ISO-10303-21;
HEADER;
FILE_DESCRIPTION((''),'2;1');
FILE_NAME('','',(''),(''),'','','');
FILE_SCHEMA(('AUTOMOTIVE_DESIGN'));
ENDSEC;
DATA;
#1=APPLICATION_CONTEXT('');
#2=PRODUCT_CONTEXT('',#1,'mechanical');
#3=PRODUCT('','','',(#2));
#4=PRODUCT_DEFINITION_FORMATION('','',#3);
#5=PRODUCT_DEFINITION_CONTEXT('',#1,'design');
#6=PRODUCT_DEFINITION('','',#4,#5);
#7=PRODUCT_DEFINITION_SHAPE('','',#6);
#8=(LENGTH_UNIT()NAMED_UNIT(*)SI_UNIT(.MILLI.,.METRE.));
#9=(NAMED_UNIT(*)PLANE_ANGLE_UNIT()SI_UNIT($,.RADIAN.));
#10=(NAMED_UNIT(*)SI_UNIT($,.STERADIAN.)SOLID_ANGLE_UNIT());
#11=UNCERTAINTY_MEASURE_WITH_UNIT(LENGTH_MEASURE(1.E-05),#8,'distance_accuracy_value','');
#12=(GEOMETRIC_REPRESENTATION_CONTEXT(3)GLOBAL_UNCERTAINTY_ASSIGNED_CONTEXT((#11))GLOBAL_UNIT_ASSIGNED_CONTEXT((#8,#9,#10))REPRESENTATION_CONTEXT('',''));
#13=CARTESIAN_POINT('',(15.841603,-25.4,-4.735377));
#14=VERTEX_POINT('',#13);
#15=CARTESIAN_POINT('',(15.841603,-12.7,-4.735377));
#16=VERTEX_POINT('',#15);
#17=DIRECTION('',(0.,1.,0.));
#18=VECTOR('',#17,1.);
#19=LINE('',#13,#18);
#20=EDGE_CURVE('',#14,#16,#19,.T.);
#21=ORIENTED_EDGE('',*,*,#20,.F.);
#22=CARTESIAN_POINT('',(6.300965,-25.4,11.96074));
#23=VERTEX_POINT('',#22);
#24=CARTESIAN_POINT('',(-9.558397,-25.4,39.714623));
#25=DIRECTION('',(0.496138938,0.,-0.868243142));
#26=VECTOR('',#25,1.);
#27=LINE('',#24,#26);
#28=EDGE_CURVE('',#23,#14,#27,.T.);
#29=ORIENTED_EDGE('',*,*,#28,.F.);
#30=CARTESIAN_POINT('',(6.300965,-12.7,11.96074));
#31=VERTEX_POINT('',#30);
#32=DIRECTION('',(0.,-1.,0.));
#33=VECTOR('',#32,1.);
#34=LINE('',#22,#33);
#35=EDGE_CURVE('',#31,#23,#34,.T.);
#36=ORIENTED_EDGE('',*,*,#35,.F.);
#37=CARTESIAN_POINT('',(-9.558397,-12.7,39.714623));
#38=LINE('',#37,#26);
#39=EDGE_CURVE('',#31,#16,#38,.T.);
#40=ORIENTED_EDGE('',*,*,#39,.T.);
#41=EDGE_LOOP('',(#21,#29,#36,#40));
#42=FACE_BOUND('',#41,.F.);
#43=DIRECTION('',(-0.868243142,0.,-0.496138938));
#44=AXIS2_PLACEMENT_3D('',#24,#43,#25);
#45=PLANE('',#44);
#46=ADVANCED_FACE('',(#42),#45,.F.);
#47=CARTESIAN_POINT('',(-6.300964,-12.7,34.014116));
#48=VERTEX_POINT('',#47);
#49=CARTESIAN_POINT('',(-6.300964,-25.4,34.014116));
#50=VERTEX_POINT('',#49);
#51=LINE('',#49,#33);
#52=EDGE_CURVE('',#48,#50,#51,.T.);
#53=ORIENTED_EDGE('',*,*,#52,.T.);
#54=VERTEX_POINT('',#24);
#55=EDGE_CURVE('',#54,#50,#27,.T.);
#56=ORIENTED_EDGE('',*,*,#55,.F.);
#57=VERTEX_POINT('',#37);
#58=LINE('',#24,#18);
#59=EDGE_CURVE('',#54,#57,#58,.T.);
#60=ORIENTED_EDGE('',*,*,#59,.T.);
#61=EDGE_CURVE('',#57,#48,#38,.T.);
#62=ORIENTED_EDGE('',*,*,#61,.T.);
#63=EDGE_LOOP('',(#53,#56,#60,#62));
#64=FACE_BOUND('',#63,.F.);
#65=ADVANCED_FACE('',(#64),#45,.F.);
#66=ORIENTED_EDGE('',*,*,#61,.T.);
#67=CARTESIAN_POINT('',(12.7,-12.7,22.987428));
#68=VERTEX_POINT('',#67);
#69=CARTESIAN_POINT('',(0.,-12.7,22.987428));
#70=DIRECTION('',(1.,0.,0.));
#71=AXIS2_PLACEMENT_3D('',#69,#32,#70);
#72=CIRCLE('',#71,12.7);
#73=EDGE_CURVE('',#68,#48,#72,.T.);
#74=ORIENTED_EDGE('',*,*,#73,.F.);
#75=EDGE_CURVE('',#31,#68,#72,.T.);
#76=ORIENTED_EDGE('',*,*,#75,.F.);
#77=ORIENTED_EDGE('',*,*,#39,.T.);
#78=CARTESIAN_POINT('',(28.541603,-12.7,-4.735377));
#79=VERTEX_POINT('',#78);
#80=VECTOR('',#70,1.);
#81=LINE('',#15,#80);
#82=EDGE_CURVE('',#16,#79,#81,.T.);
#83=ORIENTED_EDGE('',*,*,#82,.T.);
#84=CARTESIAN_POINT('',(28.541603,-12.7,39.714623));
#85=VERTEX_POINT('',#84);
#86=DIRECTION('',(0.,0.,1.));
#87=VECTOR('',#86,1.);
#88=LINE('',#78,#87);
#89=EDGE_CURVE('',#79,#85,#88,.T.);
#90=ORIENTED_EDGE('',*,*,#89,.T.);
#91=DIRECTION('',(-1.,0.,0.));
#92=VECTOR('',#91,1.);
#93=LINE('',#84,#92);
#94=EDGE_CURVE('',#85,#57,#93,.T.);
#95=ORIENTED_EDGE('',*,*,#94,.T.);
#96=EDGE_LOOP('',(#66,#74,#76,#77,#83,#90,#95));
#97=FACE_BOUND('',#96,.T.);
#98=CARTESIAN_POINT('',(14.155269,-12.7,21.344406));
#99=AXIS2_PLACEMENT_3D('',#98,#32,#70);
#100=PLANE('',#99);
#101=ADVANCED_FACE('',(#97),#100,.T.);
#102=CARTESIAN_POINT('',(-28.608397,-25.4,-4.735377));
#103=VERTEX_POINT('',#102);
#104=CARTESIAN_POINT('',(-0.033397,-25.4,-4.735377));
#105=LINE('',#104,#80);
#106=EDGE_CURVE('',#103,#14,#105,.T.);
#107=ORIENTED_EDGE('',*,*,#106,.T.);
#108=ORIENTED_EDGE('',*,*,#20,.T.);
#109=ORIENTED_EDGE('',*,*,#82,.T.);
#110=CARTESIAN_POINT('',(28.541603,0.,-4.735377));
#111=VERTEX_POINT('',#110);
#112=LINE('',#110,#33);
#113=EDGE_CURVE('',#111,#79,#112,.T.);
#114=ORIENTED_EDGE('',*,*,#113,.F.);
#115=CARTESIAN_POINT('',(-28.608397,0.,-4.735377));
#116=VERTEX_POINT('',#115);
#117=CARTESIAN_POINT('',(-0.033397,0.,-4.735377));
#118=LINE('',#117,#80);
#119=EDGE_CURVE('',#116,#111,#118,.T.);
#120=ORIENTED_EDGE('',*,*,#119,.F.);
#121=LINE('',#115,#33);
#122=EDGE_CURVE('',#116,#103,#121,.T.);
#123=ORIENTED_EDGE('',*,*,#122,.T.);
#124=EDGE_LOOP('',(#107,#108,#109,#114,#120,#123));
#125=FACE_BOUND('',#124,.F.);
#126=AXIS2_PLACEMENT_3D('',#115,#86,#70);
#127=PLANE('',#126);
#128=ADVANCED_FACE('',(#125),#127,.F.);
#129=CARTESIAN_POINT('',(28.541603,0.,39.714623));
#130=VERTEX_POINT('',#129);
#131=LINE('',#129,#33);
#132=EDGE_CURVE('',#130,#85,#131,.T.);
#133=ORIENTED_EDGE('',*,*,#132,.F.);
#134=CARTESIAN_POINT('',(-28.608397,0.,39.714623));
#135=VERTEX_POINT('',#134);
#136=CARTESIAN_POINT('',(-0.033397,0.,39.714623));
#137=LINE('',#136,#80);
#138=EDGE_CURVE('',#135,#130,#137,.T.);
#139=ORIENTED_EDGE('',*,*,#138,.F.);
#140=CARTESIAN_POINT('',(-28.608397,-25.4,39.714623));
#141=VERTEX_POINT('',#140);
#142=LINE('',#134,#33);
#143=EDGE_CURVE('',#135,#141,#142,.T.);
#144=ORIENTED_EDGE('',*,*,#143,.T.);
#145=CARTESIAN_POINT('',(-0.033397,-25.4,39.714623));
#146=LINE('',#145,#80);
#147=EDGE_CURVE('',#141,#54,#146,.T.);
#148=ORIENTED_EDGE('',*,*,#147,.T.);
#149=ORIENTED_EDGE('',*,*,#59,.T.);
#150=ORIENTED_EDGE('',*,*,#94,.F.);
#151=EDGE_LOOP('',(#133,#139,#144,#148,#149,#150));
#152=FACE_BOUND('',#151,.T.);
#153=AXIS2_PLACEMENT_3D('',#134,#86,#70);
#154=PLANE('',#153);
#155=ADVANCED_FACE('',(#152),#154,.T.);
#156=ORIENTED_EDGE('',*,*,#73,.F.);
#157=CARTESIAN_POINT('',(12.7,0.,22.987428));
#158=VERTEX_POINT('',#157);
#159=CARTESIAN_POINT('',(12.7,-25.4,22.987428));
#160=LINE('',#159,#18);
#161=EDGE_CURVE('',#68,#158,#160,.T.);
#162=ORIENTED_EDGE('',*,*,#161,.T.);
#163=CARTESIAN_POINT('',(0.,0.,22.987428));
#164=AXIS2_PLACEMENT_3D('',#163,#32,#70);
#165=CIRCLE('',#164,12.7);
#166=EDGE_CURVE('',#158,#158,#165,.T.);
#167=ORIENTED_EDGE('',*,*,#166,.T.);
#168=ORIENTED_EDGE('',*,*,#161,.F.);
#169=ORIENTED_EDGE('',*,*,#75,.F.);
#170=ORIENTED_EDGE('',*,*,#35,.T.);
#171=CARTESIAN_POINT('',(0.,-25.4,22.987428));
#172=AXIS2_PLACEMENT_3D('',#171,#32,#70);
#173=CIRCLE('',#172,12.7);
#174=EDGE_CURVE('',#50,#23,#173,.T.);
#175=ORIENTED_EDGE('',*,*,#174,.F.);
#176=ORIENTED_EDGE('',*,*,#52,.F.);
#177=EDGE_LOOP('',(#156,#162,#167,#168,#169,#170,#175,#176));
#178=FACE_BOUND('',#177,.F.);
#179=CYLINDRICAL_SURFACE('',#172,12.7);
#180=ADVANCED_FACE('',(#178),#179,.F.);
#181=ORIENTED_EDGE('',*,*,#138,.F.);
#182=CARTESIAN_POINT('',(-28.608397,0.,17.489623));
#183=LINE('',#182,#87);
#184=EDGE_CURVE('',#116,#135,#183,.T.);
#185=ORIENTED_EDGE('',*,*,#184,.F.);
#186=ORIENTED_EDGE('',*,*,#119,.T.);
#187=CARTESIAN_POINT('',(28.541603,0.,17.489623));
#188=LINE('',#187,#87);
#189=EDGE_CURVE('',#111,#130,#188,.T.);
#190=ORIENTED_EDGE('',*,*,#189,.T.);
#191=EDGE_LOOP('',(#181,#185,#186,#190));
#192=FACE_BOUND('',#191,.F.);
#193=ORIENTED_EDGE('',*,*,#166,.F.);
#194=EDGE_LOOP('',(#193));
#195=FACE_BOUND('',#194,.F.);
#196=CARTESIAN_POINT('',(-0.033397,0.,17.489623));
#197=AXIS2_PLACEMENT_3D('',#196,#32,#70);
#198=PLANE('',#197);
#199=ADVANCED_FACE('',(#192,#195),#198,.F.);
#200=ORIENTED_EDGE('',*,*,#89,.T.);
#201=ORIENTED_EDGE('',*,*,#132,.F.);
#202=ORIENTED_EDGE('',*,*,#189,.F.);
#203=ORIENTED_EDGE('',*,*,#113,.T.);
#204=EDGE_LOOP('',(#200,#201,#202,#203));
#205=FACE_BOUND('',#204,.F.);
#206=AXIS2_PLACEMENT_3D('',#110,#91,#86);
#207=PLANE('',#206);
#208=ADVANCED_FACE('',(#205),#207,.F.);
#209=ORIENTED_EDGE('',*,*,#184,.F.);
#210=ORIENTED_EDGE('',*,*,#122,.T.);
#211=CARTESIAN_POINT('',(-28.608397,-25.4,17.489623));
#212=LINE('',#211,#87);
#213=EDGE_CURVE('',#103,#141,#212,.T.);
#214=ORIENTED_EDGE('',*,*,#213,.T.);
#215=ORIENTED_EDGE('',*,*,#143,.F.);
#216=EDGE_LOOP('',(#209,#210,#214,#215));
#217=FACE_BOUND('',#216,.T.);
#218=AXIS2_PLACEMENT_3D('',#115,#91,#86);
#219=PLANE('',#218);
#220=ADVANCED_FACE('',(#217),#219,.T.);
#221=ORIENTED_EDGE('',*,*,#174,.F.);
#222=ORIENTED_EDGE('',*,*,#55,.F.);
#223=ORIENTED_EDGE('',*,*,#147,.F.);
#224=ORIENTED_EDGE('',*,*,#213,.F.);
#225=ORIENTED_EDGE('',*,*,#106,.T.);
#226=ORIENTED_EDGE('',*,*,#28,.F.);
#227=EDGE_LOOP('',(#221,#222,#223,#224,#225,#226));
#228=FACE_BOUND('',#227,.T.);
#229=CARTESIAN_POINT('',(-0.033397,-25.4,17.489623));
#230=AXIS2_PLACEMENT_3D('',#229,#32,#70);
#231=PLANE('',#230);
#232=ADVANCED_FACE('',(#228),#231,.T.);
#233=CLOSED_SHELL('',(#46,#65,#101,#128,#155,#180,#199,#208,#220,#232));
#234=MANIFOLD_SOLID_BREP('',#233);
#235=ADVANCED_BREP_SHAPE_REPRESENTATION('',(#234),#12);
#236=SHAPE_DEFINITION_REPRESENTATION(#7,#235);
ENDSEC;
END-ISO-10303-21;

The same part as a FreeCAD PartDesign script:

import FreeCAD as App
import Part
import Sketcher
from FreeCAD import Vector
Q = App.Units.Quantity


def add_polygon(sketch, points):
    """Adds a closed chain of lines whose ends are joined by coincident constraints."""
    first, n = sketch.GeometryCount, len(points)
    for a, b in zip(points, points[1:] + points[:1]):
        sketch.addGeometry(Part.LineSegment(App.Vector(*a, 0), App.Vector(*b, 0)), False)
    for i in range(n):
        sketch.addConstraint(Sketcher.Constraint("Coincident", first + i, 2, first + (i + 1) % n, 1))

doc = App.newDocument("Part")
body = doc.addObject("PartDesign::Body", "Body")

sketch1 = body.newObject("Sketcher::SketchObject", "Sketch")
sketch1.AttachmentSupport = (doc.getObject("XZ_Plane"), [""])
sketch1.MapMode = "FlatFace"
add_polygon(sketch1, [(-28.608397, 39.714623), (-28.608397, -4.735377), (28.541603, -4.735377), (28.541603, 39.714623)])
sketch1.addConstraint([
    Sketcher.Constraint("Vertical", 0),
    Sketcher.Constraint("Horizontal", 1),
    Sketcher.Constraint("Vertical", 2),
    Sketcher.Constraint("Horizontal", 3),
    Sketcher.Constraint("DistanceX", 1, 1, 1, 2, Q("2.25 in")),
    Sketcher.Constraint("DistanceY", 0, 2, 0, 1, Q("1.75 in")),
    Sketcher.Constraint("DistanceX", 0, 2, -1, 1, 28.608397),
    Sketcher.Constraint("DistanceY", 0, 2, -1, 1, 4.735377),
])
pad1 = body.newObject("PartDesign::Pad", "Pad")
pad1.Profile = sketch1
pad1.Length = Q("1 in")

sketch2 = body.newObject("Sketcher::SketchObject", "Sketch001")
sketch2.AttachmentSupport = (doc.getObject("XZ_Plane"), [""])
sketch2.MapMode = "FlatFace"
sketch2.AttachmentOffset = App.Placement(Vector(0, 0, 1 * 25.4), App.Rotation())
add_polygon(sketch2, [(28.541603, 39.714623), (-9.558397, 39.714623), (15.841603, -4.735377), (28.541603, -4.735377)])
sketch2.addConstraint([
    Sketcher.Constraint("Horizontal", 0),
    Sketcher.Constraint("Horizontal", 2),
    Sketcher.Constraint("Vertical", 3),
    Sketcher.Constraint("DistanceX", 0, 2, 0, 1, Q("1.5 in")),
    Sketcher.Constraint("DistanceX", 2, 1, 2, 2, Q("0.5 in")),
    Sketcher.Constraint("DistanceY", 3, 1, 3, 2, Q("1.75 in")),
    Sketcher.Constraint("DistanceX", 0, 2, -1, 1, 9.558397),
    Sketcher.Constraint("DistanceY", -1, 1, 0, 2, 39.714623),
])
pocket1 = body.newObject("PartDesign::Pocket", "Pocket")
pocket1.Profile = sketch2
pocket1.Length = Q("0.5 in")

sketch3 = body.newObject("Sketcher::SketchObject", "Sketch002")
sketch3.AttachmentSupport = (doc.getObject("XZ_Plane"), [""])
sketch3.MapMode = "FlatFace"
sketch3.AttachmentOffset = App.Placement(Vector(0, 0, 1 * 25.4), App.Rotation())
sketch3.addGeometry(Part.Circle(Vector(0, 22.987428, 0), Vector(0, 0, 1), 12.7), False)
sketch3.addConstraint([
    Sketcher.Constraint("PointOnObject", 0, 3, -2),
    Sketcher.Constraint("Diameter", 0, Q("1 in")),
    Sketcher.Constraint("DistanceY", -1, 1, 0, 3, 22.987428),
])
pocket2 = body.newObject("PartDesign::Pocket", "Pocket001")
pocket2.Profile = sketch3
pocket2.Length = Q("1100 in")

doc.recompute()
